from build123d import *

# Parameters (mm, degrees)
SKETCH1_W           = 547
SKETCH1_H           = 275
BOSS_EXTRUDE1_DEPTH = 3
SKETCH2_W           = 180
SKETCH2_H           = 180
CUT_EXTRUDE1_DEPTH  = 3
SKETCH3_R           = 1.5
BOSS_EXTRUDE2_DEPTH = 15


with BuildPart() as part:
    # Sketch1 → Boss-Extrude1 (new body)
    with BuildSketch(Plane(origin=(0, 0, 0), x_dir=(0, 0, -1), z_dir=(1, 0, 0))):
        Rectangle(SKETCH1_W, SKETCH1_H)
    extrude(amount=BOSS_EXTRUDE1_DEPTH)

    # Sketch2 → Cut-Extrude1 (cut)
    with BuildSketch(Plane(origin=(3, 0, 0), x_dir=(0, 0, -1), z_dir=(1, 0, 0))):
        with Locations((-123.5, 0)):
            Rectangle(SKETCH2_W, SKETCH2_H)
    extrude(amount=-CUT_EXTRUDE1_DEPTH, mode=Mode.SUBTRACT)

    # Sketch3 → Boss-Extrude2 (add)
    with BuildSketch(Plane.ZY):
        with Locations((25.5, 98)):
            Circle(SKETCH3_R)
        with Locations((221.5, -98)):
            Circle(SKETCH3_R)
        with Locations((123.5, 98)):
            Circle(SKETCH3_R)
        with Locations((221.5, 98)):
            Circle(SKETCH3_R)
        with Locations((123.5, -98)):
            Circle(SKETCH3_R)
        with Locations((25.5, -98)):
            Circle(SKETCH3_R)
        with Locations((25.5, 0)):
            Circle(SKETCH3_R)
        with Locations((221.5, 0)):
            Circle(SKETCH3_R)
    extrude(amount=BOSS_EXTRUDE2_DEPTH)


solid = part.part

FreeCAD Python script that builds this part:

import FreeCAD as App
import Part
import Sketcher

V = App.Vector
Q = App.Units.Quantity

doc = App.newDocument("Part")
body = doc.addObject("PartDesign::Body", "Body")

# Sketch on YZ plane
sketch1 = body.newObject("Sketcher::SketchObject", "Sketch")
sketch1.AttachmentSupport = (doc.getObject("YZ_Plane"), [""])
sketch1.MapMode = "FlatFace"
sketch1.addGeometry(Part.LineSegment(V(138, 274, 0), V(-138, 274, 0)), False)
sketch1.addGeometry(Part.LineSegment(V(-138, 274, 0), V(-138, -274, 0)), False)
sketch1.addGeometry(Part.LineSegment(V(-138, -274, 0), V(138, -274, 0)), False)
sketch1.addGeometry(Part.LineSegment(V(138, -274, 0), V(138, 274, 0)), False)
sketch1.addConstraint(Sketcher.Constraint("Coincident", 0, 2, 1, 1))
sketch1.addConstraint(Sketcher.Constraint("Coincident", 1, 2, 2, 1))
sketch1.addConstraint(Sketcher.Constraint("Coincident", 2, 2, 3, 1))
sketch1.addConstraint(Sketcher.Constraint("Coincident", 3, 2, 0, 1))
sketch1.addConstraint(Sketcher.Constraint("Horizontal", 0))
sketch1.addConstraint(Sketcher.Constraint("Vertical", 1))
sketch1.addConstraint(Sketcher.Constraint("Horizontal", 2))
sketch1.addConstraint(Sketcher.Constraint("Vertical", 3))
sketch1.addConstraint(Sketcher.Constraint("Symmetric", 0, 2, 2, 2, -1, 1))
sketch1.addConstraint(Sketcher.Constraint("DistanceX", 0, 2, 0, 1, Q("275 mm")))
sketch1.addConstraint(Sketcher.Constraint("DistanceY", 1, 2, 1, 1, Q("547 mm")))
pad1 = body.newObject("PartDesign::Pad", "Pad")
pad1.Profile = sketch1
pad1.Length = 3

# Sketch on YZ plane
sketch2 = body.newObject("Sketcher::SketchObject", "Sketch001")
sketch2.AttachmentSupport = (doc.getObject("YZ_Plane"), [""])
sketch2.MapMode = "FlatFace"
sketch2.AttachmentOffset = App.Placement(V(0, 0, 3), App.Rotation())
sketch2.addGeometry(Part.LineSegment(V(90, 214, 0), V(-90, 214, 0)), False)
sketch2.addGeometry(Part.LineSegment(V(-90, 214, 0), V(-90, 34, 0)), False)
sketch2.addGeometry(Part.LineSegment(V(-90, 34, 0), V(90, 34, 0)), False)
sketch2.addGeometry(Part.LineSegment(V(90, 34, 0), V(90, 214, 0)), False)
sketch2.addConstraint(Sketcher.Constraint("Coincident", 0, 2, 1, 1))
sketch2.addConstraint(Sketcher.Constraint("Coincident", 1, 2, 2, 1))
sketch2.addConstraint(Sketcher.Constraint("Coincident", 2, 2, 3, 1))
sketch2.addConstraint(Sketcher.Constraint("Coincident", 3, 2, 0, 1))
sketch2.addConstraint(Sketcher.Constraint("Horizontal", 0))
sketch2.addConstraint(Sketcher.Constraint("Vertical", 1))
sketch2.addConstraint(Sketcher.Constraint("Horizontal", 2))
sketch2.addConstraint(Sketcher.Constraint("Vertical", 3))
sketch2.addConstraint(Sketcher.Constraint("Equal", 2, 1))
sketch2.addConstraint(Sketcher.Constraint("DistanceX", 0, 2, 0, 1, Q("180 mm")))
sketch2.addConstraint(Sketcher.Constraint("DistanceX", 0, 2, -1, 1, Q("90 mm")))
sketch2.addConstraint(Sketcher.Constraint("DistanceY", -1, 1, 0, 2, Q("213.5 mm")))
pocket1 = body.newObject("PartDesign::Pocket", "Pocket")
pocket1.Profile = sketch2
pocket1.Length = 3

# Sketch on YZ plane
sketch3 = body.newObject("Sketcher::SketchObject", "Sketch002")
sketch3.AttachmentSupport = (doc.getObject("YZ_Plane"), [""])
sketch3.MapMode = "FlatFace"
sketch3.addGeometry(Part.Circle(V(98, 25.5, 0), V(0, 0, 1), 1.5), False)
sketch3.addGeometry(Part.Circle(V(-98, 221.5, 0), V(0, 0, 1), 1.5), False)
sketch3.addGeometry(Part.Circle(V(98, 123.5, 0), V(0, 0, 1), 1.5), False)
sketch3.addGeometry(Part.Circle(V(98, 221.5, 0), V(0, 0, 1), 1.5), False)
sketch3.addGeometry(Part.Circle(V(-98, 123.5, 0), V(0, 0, 1), 1.5), False)
sketch3.addGeometry(Part.Circle(V(-98, 25.5, 0), V(0, 0, 1), 1.5), False)
sketch3.addGeometry(Part.Circle(V(0, 25.5, 0), V(0, 0, 1), 1.5), False)
sketch3.addGeometry(Part.Circle(V(0, 221.5, 0), V(0, 0, 1), 1.5), False)
sketch3.addConstraint(Sketcher.Constraint("Equal", 0, 1))
sketch3.addConstraint(Sketcher.Constraint("Equal", 1, 2))
sketch3.addConstraint(Sketcher.Constraint("Equal", 2, 3))
sketch3.addConstraint(Sketcher.Constraint("Equal", 3, 4))
sketch3.addConstraint(Sketcher.Constraint("Equal", 4, 5))
sketch3.addConstraint(Sketcher.Constraint("Equal", 5, 6))
sketch3.addConstraint(Sketcher.Constraint("Equal", 6, 7))
sketch3.addConstraint(Sketcher.Constraint("Symmetric", 1, 3, 3, 3, -2))
sketch3.addConstraint(Sketcher.Constraint("Symmetric", 2, 3, 4, 3, -2))
sketch3.addConstraint(Sketcher.Constraint("Symmetric", 0, 3, 5, 3, -2))
sketch3.addConstraint(Sketcher.Constraint("PointOnObject", 6, 3, -2))
sketch3.addConstraint(Sketcher.Constraint("PointOnObject", 7, 3, -2))
sketch3.addConstraint(Sketcher.Constraint("Horizontal", 5, 3, 6, 3))
sketch3.addConstraint(Sketcher.Constraint("Horizontal", 3, 3, 7, 3))
sketch3.addConstraint(Sketcher.Constraint("Vertical", 0, 3, 2, 3))
sketch3.addConstraint(Sketcher.Constraint("Vertical", 2, 3, 3, 3))
sketch3.addConstraint(Sketcher.Constraint("Diameter", 0, Q("3 mm")))
sketch3.addConstraint(Sketcher.Constraint("DistanceX", -1, 1, 0, 3, Q("98 mm")))
sketch3.addConstraint(Sketcher.Constraint("DistanceY", 0, 3, 1, 3, Q("196 mm")))
sketch3.addConstraint(Sketcher.Constraint("DistanceY", 0, 3, 2, 3, Q("98 mm")))
sketch3.addConstraint(Sketcher.Constraint("DistanceY", -1, 1, 0, 3, Q("25.5 mm")))
pad2 = body.newObject("PartDesign::Pad", "Pad001")
pad2.Profile = sketch3
pad2.Length = 15
pad2.Reversed = True

doc.recompute()
